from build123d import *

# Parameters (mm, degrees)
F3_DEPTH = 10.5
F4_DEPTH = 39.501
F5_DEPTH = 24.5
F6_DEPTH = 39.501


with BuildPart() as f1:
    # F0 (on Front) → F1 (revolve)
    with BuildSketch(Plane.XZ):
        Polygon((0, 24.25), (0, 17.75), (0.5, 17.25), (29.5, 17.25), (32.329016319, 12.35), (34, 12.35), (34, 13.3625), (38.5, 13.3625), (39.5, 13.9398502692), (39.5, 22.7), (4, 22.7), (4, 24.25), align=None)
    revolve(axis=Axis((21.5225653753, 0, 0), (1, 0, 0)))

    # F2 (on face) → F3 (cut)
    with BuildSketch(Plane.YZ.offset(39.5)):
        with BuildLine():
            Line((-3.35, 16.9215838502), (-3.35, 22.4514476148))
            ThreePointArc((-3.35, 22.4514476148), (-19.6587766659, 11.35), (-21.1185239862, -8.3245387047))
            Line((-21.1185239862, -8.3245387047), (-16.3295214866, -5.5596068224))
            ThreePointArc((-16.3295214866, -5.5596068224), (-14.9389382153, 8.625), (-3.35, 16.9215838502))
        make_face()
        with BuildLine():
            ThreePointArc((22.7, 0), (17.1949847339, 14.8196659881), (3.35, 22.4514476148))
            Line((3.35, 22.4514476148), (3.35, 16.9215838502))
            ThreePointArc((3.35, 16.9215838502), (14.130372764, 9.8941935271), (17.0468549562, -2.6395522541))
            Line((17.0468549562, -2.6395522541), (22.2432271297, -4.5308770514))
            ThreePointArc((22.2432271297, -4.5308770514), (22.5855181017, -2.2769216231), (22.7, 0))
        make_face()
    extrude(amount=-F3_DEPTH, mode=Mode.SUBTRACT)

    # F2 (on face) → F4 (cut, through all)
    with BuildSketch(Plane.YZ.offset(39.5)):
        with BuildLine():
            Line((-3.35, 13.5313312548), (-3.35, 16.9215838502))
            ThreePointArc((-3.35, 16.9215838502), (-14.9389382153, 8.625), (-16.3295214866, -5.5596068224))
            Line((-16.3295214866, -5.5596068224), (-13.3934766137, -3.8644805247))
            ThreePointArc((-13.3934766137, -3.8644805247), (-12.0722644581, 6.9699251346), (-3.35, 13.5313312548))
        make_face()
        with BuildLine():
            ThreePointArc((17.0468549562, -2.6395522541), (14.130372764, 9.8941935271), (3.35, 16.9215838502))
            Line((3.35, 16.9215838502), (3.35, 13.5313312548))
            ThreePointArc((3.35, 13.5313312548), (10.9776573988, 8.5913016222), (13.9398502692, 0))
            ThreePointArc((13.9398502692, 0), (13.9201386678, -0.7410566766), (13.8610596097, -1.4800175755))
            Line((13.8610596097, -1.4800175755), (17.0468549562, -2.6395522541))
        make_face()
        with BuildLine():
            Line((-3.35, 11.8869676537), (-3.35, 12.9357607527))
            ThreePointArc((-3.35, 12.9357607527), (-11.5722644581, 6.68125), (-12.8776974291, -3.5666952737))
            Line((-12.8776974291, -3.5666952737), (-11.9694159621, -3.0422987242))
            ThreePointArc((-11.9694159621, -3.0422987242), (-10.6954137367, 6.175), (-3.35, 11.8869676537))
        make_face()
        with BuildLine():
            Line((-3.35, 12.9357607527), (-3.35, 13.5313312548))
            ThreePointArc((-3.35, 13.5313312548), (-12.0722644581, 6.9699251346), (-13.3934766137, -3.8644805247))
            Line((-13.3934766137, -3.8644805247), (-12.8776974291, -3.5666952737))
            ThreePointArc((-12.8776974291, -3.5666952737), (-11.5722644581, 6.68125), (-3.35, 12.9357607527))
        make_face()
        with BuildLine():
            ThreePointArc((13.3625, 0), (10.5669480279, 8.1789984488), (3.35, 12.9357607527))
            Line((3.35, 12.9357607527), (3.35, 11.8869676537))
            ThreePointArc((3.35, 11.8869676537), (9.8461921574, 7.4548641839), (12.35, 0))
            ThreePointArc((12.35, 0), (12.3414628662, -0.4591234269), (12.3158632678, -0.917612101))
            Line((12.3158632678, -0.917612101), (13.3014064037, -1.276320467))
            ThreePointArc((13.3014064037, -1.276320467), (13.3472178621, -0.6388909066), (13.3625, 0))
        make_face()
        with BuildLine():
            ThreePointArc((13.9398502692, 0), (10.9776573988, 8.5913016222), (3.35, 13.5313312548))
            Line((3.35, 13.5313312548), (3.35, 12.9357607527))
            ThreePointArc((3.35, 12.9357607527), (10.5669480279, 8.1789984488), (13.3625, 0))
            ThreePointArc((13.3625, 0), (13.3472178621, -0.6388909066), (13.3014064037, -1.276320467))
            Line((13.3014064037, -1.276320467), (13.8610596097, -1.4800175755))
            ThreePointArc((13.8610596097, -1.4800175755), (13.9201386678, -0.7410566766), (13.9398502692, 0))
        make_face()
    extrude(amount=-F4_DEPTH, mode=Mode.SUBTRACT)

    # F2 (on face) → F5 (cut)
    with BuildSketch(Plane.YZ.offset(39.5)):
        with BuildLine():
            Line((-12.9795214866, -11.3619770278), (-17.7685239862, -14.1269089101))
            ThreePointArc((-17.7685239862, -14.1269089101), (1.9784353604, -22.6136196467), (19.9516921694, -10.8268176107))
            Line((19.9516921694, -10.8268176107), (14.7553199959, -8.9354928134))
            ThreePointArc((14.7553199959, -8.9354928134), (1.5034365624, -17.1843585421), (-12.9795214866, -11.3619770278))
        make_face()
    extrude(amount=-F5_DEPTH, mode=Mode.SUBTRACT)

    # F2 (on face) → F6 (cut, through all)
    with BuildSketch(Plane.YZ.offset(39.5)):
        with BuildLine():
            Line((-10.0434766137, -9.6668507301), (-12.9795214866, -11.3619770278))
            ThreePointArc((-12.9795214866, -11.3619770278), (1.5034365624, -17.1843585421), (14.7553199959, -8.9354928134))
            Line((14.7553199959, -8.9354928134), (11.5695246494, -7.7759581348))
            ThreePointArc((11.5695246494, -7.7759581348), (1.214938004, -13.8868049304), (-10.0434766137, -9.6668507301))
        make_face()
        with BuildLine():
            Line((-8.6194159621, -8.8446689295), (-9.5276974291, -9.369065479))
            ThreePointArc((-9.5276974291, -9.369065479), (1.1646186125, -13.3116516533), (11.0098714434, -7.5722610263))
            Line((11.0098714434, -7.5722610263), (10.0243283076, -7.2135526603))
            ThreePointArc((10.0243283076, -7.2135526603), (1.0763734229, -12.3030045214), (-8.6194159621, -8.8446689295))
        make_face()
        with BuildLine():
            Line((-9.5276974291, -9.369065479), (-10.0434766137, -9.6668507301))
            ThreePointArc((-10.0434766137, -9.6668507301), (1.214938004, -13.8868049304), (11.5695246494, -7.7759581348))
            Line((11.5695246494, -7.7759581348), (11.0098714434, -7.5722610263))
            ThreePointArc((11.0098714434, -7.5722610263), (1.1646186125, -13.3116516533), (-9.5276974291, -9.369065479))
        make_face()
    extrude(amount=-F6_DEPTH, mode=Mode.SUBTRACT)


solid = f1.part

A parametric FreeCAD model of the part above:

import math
import FreeCAD as App
import Part
import Sketcher
from FreeCAD import Vector
Q = App.Units.Quantity


def add_polygon(sketch, points):
    """Adds a closed chain of lines whose ends are joined by coincident constraints."""
    first, n = sketch.GeometryCount, len(points)
    for a, b in zip(points, points[1:] + points[:1]):
        sketch.addGeometry(Part.LineSegment(App.Vector(*a, 0), App.Vector(*b, 0)), False)
    for i in range(n):
        sketch.addConstraint(Sketcher.Constraint("Coincident", first + i, 2, first + (i + 1) % n, 1))

doc = App.newDocument("Part")
body = doc.addObject("PartDesign::Body", "Body")

sketch1 = body.newObject("Sketcher::SketchObject", "Sketch")
sketch1.AttachmentSupport = (doc.getObject("XZ_Plane"), [""])
sketch1.MapMode = "FlatFace"
add_polygon(sketch1, [(0, 24.2), (0, 17.8), (0.5, 17.2), (29.5, 17.2), (32.3, 12.3), (34, 12.3), (34, 13.4), (38.5, 13.4), (39.5, 13.9), (39.5, 22.7), (4, 22.7), (4, 24.2)])
sketch1.addConstraint([
    Sketcher.Constraint("Vertical", 0),
    Sketcher.Constraint("Horizontal", 2),
    Sketcher.Constraint("Horizontal", 4),
    Sketcher.Constraint("Vertical", 5),
    Sketcher.Constraint("Horizontal", 6),
    Sketcher.Constraint("Vertical", 8),
    Sketcher.Constraint("Horizontal", 9),
    Sketcher.Constraint("Vertical", 10),
    Sketcher.Constraint("Horizontal", 11),
    Sketcher.Constraint("PointOnObject", 0, 2, -2),
    Sketcher.Constraint("Perpendicular", 3, 7),
    Sketcher.Constraint("DistanceX", 2, 1, 2, 2, 29.0),
    Sketcher.Constraint("DistanceX", 11, 2, 11, 1, 4.0),
    Sketcher.Constraint("Angle", 1, Q("-45 deg")),
    Sketcher.Constraint("Angle", 3, Q("-60 deg")),
    Sketcher.Constraint("DistanceX", 6, 1, 6, 2, 4.5),
    Sketcher.Constraint("DistanceX", 9, 2, 9, 1, 35.5),
    Sketcher.Constraint("DistanceY", 0, 2, 0, 1, 6.5),
    Sketcher.Constraint("DistanceX", -1, 1, 4, 2, 34.0),
    Sketcher.Constraint("DistanceX", 2, 2, 6, 2, 9.0),
    Sketcher.Constraint("DistanceY", 10, 1, 10, 2, 1.55),
    Sketcher.Constraint("DistanceY", -1, 1, 8, 2, 22.7),
    Sketcher.Constraint("DistanceY", 3, 2, 2, 2, 4.9),
    Sketcher.Constraint("DistanceY", 5, 1, 5, 2, 1.0125),
])
revolution = body.newObject("PartDesign::Revolution", "Revolution")
revolution.Profile = sketch1
revolution.ReferenceAxis = (sketch1, ["H_Axis"])
revolution.Angle = 360

sketch2 = body.newObject("Sketcher::SketchObject", "Sketch001")
sketch2.AttachmentSupport = (doc.getObject("YZ_Plane"), [""])
sketch2.MapMode = "FlatFace"
sketch2.AttachmentOffset = App.Placement(Vector(0, 0, 39.5), App.Rotation())
sketch2.addGeometry([
    Part.LineSegment(Vector(-3.4, 16.9, 0), Vector(-3.4, 22.5, 0)),
    Part.ArcOfCircle(Part.Circle(Vector(0, 0, 0), Vector(0, 0, 1), 22.7), math.radians(98), math.radians(202)),
    Part.LineSegment(Vector(-21.1, -8.3, 0), Vector(-16.3, -5.6, 0)),
    Part.ArcOfCircle(Part.Circle(Vector(0, 0, 0), Vector(0, 0, 1), 17.2), math.radians(101), math.radians(199)),
    Part.ArcOfCircle(Part.Circle(Vector(0, 0, 0), Vector(0, 0, 1), 22.7), math.radians(0), math.radians(82)),
    Part.LineSegment(Vector(3.4, 22.5, 0), Vector(3.4, 16.9, 0)),
    Part.ArcOfCircle(Part.Circle(Vector(0, 0, 0), Vector(0, 0, 1), 17.2), math.radians(-9), math.radians(79)),
    Part.LineSegment(Vector(17, -2.6, 0), Vector(22.2, -4.5, 0)),
    Part.ArcOfCircle(Part.Circle(Vector(0, 0, 0), Vector(0, 0, 1), 22.7), math.radians(-11.51), math.radians(0)),
], False)
sketch2.addConstraint([
    Sketcher.Constraint("Coincident", 0, 2, 1, 1),
    Sketcher.Constraint("Coincident", 1, 2, 2, 1),
    Sketcher.Constraint("Coincident", 2, 2, 3, 2),
    Sketcher.Constraint("Coincident", 3, 1, 0, 1),
    Sketcher.Constraint("Coincident", 4, 2, 5, 1),
    Sketcher.Constraint("Coincident", 5, 2, 6, 2),
    Sketcher.Constraint("Coincident", 6, 1, 7, 1),
    Sketcher.Constraint("Coincident", 7, 2, 8, 1),
    Sketcher.Constraint("Tangent", 8, 2, 4, 1),
    Sketcher.Constraint("Vertical", 0),
    Sketcher.Constraint("Vertical", 5),
    Sketcher.Constraint("Coincident", 1, 3, -1, 1),
    Sketcher.Constraint("Coincident", 3, 3, -1, 1),
    Sketcher.Constraint("Coincident", 4, 3, -1, 1),
    Sketcher.Constraint("Coincident", 6, 3, -1, 1),
    Sketcher.Constraint("Equal", 1, 4),
    Sketcher.Constraint("Equal", 3, 6),
    Sketcher.Constraint("Equal", 4, 8),
    Sketcher.Constraint("PointOnObject", 8, 2, -1),
    Sketcher.Constraint("Horizontal", 0, 2, 4, 2),
    Sketcher.Constraint("Equal", 2, 7),
    Sketcher.Constraint("Radius", 1, 22.7),
    Sketcher.Constraint("Angle", 2, Q("30 deg")),
    Sketcher.Constraint("Angle", 7, Q("-20 deg")),
    Sketcher.Constraint("Radius", 3, 17.25),
    Sketcher.Constraint("DistanceX", 0, 2, 4, 2, 6.7),
    Sketcher.Constraint("DistanceY", 1, 2, -1, 1, 8.324539),
])
pocket1 = body.newObject("PartDesign::Pocket", "Pocket")
pocket1.Profile = sketch2
pocket1.Length = 10.5

sketch3 = body.newObject("Sketcher::SketchObject", "Sketch002")
sketch3.AttachmentSupport = (doc.getObject("YZ_Plane"), [""])
sketch3.MapMode = "FlatFace"
sketch3.AttachmentOffset = App.Placement(Vector(0, 0, 39.5), App.Rotation())
sketch3.addGeometry([
    Part.ArcOfCircle(Part.Circle(Vector(0, 0, 0), Vector(0, 0, 1), 17.2), math.radians(101), math.radians(199)),
    Part.LineSegment(Vector(-16.3, -5.6, 0), Vector(-13.4, -3.9, 0)),
    Part.LineSegment(Vector(-13.4, -3.9, 0), Vector(-12.9, -3.6, 0)),
    Part.LineSegment(Vector(-12.9, -3.6, 0), Vector(-12, -3, 0)),
    Part.ArcOfCircle(Part.Circle(Vector(0, 0, 0), Vector(0, 0, 1), 12.3), math.radians(106), math.radians(194)),
    Part.LineSegment(Vector(-3.4, 11.9, 0), Vector(-3.4, 16.9, 0)),
    Part.ArcOfCircle(Part.Circle(Vector(0, 0, 0), Vector(0, 0, 1), 17.2), math.radians(-9), math.radians(79)),
    Part.LineSegment(Vector(3.4, 16.9, 0), Vector(3.4, 11.9, 0)),
    Part.ArcOfCircle(Part.Circle(Vector(0, 0, 0), Vector(0, 0, 1), 12.3), math.radians(0), math.radians(74)),
    Part.ArcOfCircle(Part.Circle(Vector(0, 0, 0), Vector(0, 0, 1), 12.4), math.radians(-4.26), math.radians(0)),
    Part.LineSegment(Vector(12.3, -0.9, 0), Vector(13.3, -1.3, 0)),
    Part.LineSegment(Vector(13.3, -1.3, 0), Vector(13.9, -1.5, 0)),
    Part.LineSegment(Vector(13.9, -1.5, 0), Vector(17, -2.6, 0)),
], False)
sketch3.addConstraint([
    Sketcher.Constraint("Coincident", 0, 2, 1, 1),
    Sketcher.Constraint("Coincident", 1, 2, 2, 1),
    Sketcher.Constraint("Coincident", 2, 2, 3, 1),
    Sketcher.Constraint("Coincident", 3, 2, 4, 2),
    Sketcher.Constraint("Coincident", 4, 1, 5, 1),
    Sketcher.Constraint("Coincident", 5, 2, 0, 1),
    Sketcher.Constraint("Coincident", 6, 2, 7, 1),
    Sketcher.Constraint("Coincident", 7, 2, 8, 2),
    Sketcher.Constraint("Tangent", 8, 1, 9, 2),
    Sketcher.Constraint("Coincident", 9, 1, 10, 1),
    Sketcher.Constraint("Coincident", 10, 2, 11, 1),
    Sketcher.Constraint("Coincident", 11, 2, 12, 1),
    Sketcher.Constraint("Coincident", 12, 2, 6, 1),
    Sketcher.Constraint("Vertical", 5),
    Sketcher.Constraint("Vertical", 7),
    Sketcher.Constraint("Coincident", 0, 3, -1, 1),
    Sketcher.Constraint("Coincident", 4, 3, -1, 1),
    Sketcher.Constraint("Coincident", 6, 3, -1, 1),
    Sketcher.Constraint("Coincident", 8, 3, -1, 1),
    Sketcher.Constraint("Equal", 0, 6),
    Sketcher.Constraint("Equal", 4, 8),
    Sketcher.Constraint("Equal", 8, 9),
    Sketcher.Constraint("PointOnObject", 8, 1, -1),
    Sketcher.Constraint("Parallel", 1, 2),
    Sketcher.Constraint("Parallel", 2, 3),
    Sketcher.Constraint("Parallel", 10, 11),
    Sketcher.Constraint("Parallel", 11, 12),
    Sketcher.Constraint("Horizontal", 5, 2, 6, 2),
    Sketcher.Constraint("Equal", 3, 10),
    Sketcher.Constraint("Equal", 2, 11),
    Sketcher.Constraint("Equal", 1, 12),
    Sketcher.Constraint("Angle", 1, Q("30 deg")),
    Sketcher.Constraint("Angle", 10, Q("-20 deg")),
    Sketcher.Constraint("Radius", 0, 17.25),
    Sketcher.Constraint("Radius", 4, 12.35),
    Sketcher.Constraint("DistanceX", 5, 2, 6, 2, 6.7),
    Sketcher.Constraint("DistanceY", 3, 2, -1, 1, 3.042299),
    Sketcher.Constraint("Distance", 2, 0.595571),
    Sketcher.Constraint("DistanceY", 1, 2, -1, 1, 3.864481),
])
pocket2 = body.newObject("PartDesign::Pocket", "Pocket001")
pocket2.Profile = sketch3
pocket2.Type = "ThroughAll"

sketch4 = body.newObject("Sketcher::SketchObject", "Sketch003")
sketch4.AttachmentSupport = (doc.getObject("YZ_Plane"), [""])
sketch4.MapMode = "FlatFace"
sketch4.AttachmentOffset = App.Placement(Vector(0, 0, 39.5), App.Rotation())
sketch4.addGeometry([
    Part.LineSegment(Vector(-13, -11, 0), Vector(-18, -14, 0)),
    Part.ArcOfCircle(Part.Circle(Vector(0, 0, 0), Vector(0, 0, 1), 23), math.radians(-142), math.radians(-28)),
    Part.LineSegment(Vector(20, -11, 0), Vector(15, -9, 0)),
    Part.ArcOfCircle(Part.Circle(Vector(0, 0, 0), Vector(0, 0, 1), 17), math.radians(-139), math.radians(-31)),
], False)
sketch4.addConstraint([
    Sketcher.Constraint("Coincident", 0, 2, 1, 1),
    Sketcher.Constraint("Coincident", 1, 2, 2, 1),
    Sketcher.Constraint("Coincident", 2, 2, 3, 2),
    Sketcher.Constraint("Coincident", 3, 1, 0, 1),
    Sketcher.Constraint("Coincident", 1, 3, -1, 1),
    Sketcher.Constraint("Coincident", 3, 3, -1, 1),
    Sketcher.Constraint("Equal", 0, 2),
    Sketcher.Constraint("Radius", 1, 22.7),
    Sketcher.Constraint("Angle", 0, Q("-150 deg")),
    Sketcher.Constraint("Angle", 2, Q("160 deg")),
    Sketcher.Constraint("Radius", 3, 17.25),
    Sketcher.Constraint("DistanceY", 0, 2, -1, 1, 14.126909),
])
pocket3 = body.newObject("PartDesign::Pocket", "Pocket002")
pocket3.Profile = sketch4
pocket3.Length = 24.5

sketch5 = body.newObject("Sketcher::SketchObject", "Sketch004")
sketch5.AttachmentSupport = (doc.getObject("YZ_Plane"), [""])
sketch5.MapMode = "FlatFace"
sketch5.AttachmentOffset = App.Placement(Vector(0, 0, 39.5), App.Rotation())
sketch5.addGeometry([
    Part.LineSegment(Vector(-10, -9.7, 0), Vector(-13, -11.4, 0)),
    Part.ArcOfCircle(Part.Circle(Vector(0, 0, 0), Vector(0, 0, 1), 17.2), math.radians(-139), math.radians(-31)),
    Part.LineSegment(Vector(14.8, -8.9, 0), Vector(11.6, -7.8, 0)),
    Part.LineSegment(Vector(11.6, -7.8, 0), Vector(11, -7.6, 0)),
    Part.LineSegment(Vector(11, -7.6, 0), Vector(10, -7.2, 0)),
    Part.ArcOfCircle(Part.Circle(Vector(0, 0, 0), Vector(0, 0, 1), 12.3), math.radians(-134), math.radians(-36)),
    Part.LineSegment(Vector(-8.6, -8.8, 0), Vector(-9.5, -9.4, 0)),
    Part.LineSegment(Vector(-9.5, -9.4, 0), Vector(-10, -9.7, 0)),
], False)
sketch5.addConstraint([
    Sketcher.Constraint("Coincident", 0, 2, 1, 1),
    Sketcher.Constraint("Coincident", 1, 2, 2, 1),
    Sketcher.Constraint("Coincident", 2, 2, 3, 1),
    Sketcher.Constraint("Coincident", 3, 2, 4, 1),
    Sketcher.Constraint("Coincident", 4, 2, 5, 2),
    Sketcher.Constraint("Coincident", 5, 1, 6, 1),
    Sketcher.Constraint("Coincident", 6, 2, 7, 1),
    Sketcher.Constraint("Coincident", 7, 2, 0, 1),
    Sketcher.Constraint("Coincident", 1, 3, -1, 1),
    Sketcher.Constraint("Coincident", 5, 3, -1, 1),
    Sketcher.Constraint("Parallel", 2, 3),
    Sketcher.Constraint("Parallel", 3, 4),
    Sketcher.Constraint("Parallel", 0, 6),
    Sketcher.Constraint("Parallel", 6, 7),
    Sketcher.Constraint("Equal", 0, 2),
    Sketcher.Constraint("Equal", 4, 6),
    Sketcher.Constraint("Equal", 3, 7),
    Sketcher.Constraint("Angle", 0, Q("-150 deg")),
    Sketcher.Constraint("Angle", 2, Q("160 deg")),
    Sketcher.Constraint("Radius", 1, 17.25),
    Sketcher.Constraint("Radius", 5, 12.35),
    Sketcher.Constraint("Distance", 3, 0.595571),
    Sketcher.Constraint("DistanceX", 0, 2, -1, 1, 12.979521),
    Sketcher.Constraint("DistanceY", 2, 2, -1, 1, 7.775958),
])
pocket4 = body.newObject("PartDesign::Pocket", "Pocket003")
pocket4.Profile = sketch5
pocket4.Type = "ThroughAll"

doc.recompute()
